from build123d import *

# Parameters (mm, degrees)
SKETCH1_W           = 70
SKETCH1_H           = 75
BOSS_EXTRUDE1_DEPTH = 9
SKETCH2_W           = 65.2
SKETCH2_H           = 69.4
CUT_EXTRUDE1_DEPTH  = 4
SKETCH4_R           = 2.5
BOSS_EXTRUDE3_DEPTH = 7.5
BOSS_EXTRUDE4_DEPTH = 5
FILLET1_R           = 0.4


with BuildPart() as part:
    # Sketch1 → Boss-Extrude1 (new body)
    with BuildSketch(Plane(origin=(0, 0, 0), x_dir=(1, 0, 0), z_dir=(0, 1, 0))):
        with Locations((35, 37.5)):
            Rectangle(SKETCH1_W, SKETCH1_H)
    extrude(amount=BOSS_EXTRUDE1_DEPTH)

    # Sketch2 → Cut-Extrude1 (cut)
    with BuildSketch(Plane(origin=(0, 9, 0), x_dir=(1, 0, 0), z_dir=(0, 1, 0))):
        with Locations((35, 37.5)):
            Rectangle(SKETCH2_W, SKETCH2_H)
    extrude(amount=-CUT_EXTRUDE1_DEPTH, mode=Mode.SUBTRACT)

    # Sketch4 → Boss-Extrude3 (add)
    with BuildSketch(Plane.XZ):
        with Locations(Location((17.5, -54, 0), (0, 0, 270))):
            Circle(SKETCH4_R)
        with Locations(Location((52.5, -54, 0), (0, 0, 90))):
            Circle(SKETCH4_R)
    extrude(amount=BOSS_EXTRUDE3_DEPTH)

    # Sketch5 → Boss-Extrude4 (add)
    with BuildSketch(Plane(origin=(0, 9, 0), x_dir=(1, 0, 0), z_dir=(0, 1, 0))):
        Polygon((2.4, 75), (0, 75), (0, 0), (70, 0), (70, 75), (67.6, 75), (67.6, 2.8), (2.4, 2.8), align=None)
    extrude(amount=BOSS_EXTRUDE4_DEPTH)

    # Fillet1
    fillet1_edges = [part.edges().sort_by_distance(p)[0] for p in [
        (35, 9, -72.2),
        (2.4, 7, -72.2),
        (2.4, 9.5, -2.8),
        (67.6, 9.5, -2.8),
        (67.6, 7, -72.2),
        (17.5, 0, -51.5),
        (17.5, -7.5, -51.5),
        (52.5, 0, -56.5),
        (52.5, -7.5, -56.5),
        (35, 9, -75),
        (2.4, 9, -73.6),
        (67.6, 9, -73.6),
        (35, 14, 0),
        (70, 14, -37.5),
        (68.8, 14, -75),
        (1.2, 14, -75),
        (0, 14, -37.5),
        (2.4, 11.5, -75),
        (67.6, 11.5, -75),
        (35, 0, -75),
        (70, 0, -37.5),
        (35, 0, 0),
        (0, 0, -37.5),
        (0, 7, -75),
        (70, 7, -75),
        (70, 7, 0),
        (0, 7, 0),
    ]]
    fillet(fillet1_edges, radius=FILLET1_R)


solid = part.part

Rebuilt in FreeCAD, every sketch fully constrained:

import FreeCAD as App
import Part
import Sketcher
Q = App.Units.Quantity


def edges_at(feature, points):
    """Names of the edges that pass closest to the given points."""
    edges = feature.Shape.Edges
    near = lambda p: min(range(len(edges)), key=lambda i: edges[i].distToShape(Part.Vertex(*p))[0])
    return sorted({f"Edge{near(p) + 1}" for p in points})


def add_polygon(sketch, points):
    """Adds a closed chain of lines whose ends are joined by coincident constraints."""
    first, n = sketch.GeometryCount, len(points)
    for a, b in zip(points, points[1:] + points[:1]):
        sketch.addGeometry(Part.LineSegment(App.Vector(*a, 0), App.Vector(*b, 0)), False)
    for i in range(n):
        sketch.addConstraint(Sketcher.Constraint("Coincident", first + i, 2, first + (i + 1) % n, 1))

doc = App.newDocument("Part")
body = doc.addObject("PartDesign::Body", "Body")

sketch1 = body.newObject("Sketcher::SketchObject", "Sketch")
sketch1.AttachmentSupport = (doc.getObject("XZ_Plane"), [""])
sketch1.MapMode = "FlatFace"
add_polygon(sketch1, [(0, -75), (0, 0), (70, 0), (70, -75)])
sketch1.addConstraint([
    Sketcher.Constraint("Vertical", 0),
    Sketcher.Constraint("Horizontal", 1),
    Sketcher.Constraint("Vertical", 2),
    Sketcher.Constraint("Horizontal", 3),
    Sketcher.Constraint("Coincident", 0, 2, -1, 1),
    Sketcher.Constraint("DistanceX", 1, 1, 1, 2, Q("70 mm")),
    Sketcher.Constraint("DistanceY", 0, 1, 0, 2, Q("75 mm")),
])
pad1 = body.newObject("PartDesign::Pad", "Pad")
pad1.Profile = sketch1
pad1.Length = 9
pad1.Reversed = True

sketch2 = body.newObject("Sketcher::SketchObject", "Sketch001")
sketch2.AttachmentSupport = (doc.getObject("XZ_Plane"), [""])
sketch2.MapMode = "FlatFace"
sketch2.AttachmentOffset = App.Placement(App.Vector(0, 0, -9), App.Rotation())
add_polygon(sketch2, [(2.4, -72.2), (2.4, -2.8), (67.6, -2.8), (67.6, -72.2)])
sketch2.addConstraint([
    Sketcher.Constraint("Vertical", 0),
    Sketcher.Constraint("Horizontal", 1),
    Sketcher.Constraint("Vertical", 2),
    Sketcher.Constraint("Horizontal", 3),
    Sketcher.Constraint("DistanceX", 1, 1, 1, 2, Q("65.2 mm")),
    Sketcher.Constraint("DistanceY", 0, 1, 0, 2, Q("69.4 mm")),
    Sketcher.Constraint("DistanceX", -1, 1, 0, 2, Q("2.4 mm")),
    Sketcher.Constraint("DistanceY", 0, 2, -1, 1, Q("2.8 mm")),
])
pocket1 = body.newObject("PartDesign::Pocket", "Pocket")
pocket1.Profile = sketch2
pocket1.Length = 4
pocket1.Reversed = True

sketch3 = body.newObject("Sketcher::SketchObject", "Sketch002")
sketch3.AttachmentSupport = (doc.getObject("XZ_Plane"), [""])
sketch3.MapMode = "FlatFace"
sketch3.addGeometry([
    Part.Circle(App.Vector(17.5, -54, 0), App.Vector(0, 0, 1), 2.5),
    Part.Circle(App.Vector(52.5, -54, 0), App.Vector(0, 0, 1), 2.5),
], False)
sketch3.addConstraint([
    Sketcher.Constraint("Equal", 0, 1),
    Sketcher.Constraint("Horizontal", 0, 3, 1, 3),
    Sketcher.Constraint("Diameter", 0, Q("5 mm")),
    Sketcher.Constraint("DistanceY", 0, 3, -1, 1, Q("54 mm")),
    Sketcher.Constraint("DistanceX", 0, 3, 1, 3, Q("35 mm")),
    Sketcher.Constraint("DistanceX", -1, 1, 0, 3, Q("17.5 mm")),
])
pad2 = body.newObject("PartDesign::Pad", "Pad001")
pad2.Profile = sketch3
pad2.Length = 7.5

sketch4 = body.newObject("Sketcher::SketchObject", "Sketch003")
sketch4.AttachmentSupport = (doc.getObject("XZ_Plane"), [""])
sketch4.MapMode = "FlatFace"
sketch4.AttachmentOffset = App.Placement(App.Vector(0, 0, -9), App.Rotation())
add_polygon(sketch4, [(2.4, -75), (0, -75), (0, 0), (70, 0), (70, -75), (67.6, -75), (67.6, -2.8), (2.4, -2.8)])
sketch4.addConstraint([
    Sketcher.Constraint("Horizontal", 0),
    Sketcher.Constraint("Vertical", 1),
    Sketcher.Constraint("Horizontal", 2),
    Sketcher.Constraint("Vertical", 3),
    Sketcher.Constraint("Horizontal", 4),
    Sketcher.Constraint("Vertical", 5),
    Sketcher.Constraint("Horizontal", 6),
    Sketcher.Constraint("Vertical", 7),
    Sketcher.Constraint("Coincident", 1, 2, -1, 1),
    Sketcher.Constraint("Horizontal", 0, 2, 3, 2),
    Sketcher.Constraint("Equal", 0, 4),
    Sketcher.Constraint("DistanceX", 2, 1, 2, 2, Q("70 mm")),
    Sketcher.Constraint("DistanceY", 1, 1, 1, 2, Q("75 mm")),
    Sketcher.Constraint("DistanceX", 0, 2, 0, 1, Q("2.4 mm")),
    Sketcher.Constraint("DistanceY", 5, 1, 5, 2, Q("72.2 mm")),
])
pad3 = body.newObject("PartDesign::Pad", "Pad002")
pad3.Profile = sketch4
pad3.Length = 5
pad3.Reversed = True
doc.recompute()

fillet = body.newObject("PartDesign::Fillet", "Fillet")
fillet.Base = (pad3, edges_at(pad3, [
    (35, 9, -72.2),
    (2.4, 7, -72.2),
    (2.4, 9.5, -2.8),
    (67.6, 9.5, -2.8),
    (67.6, 7, -72.2),
    (17.5, 0, -51.5),
    (17.5, -7.5, -51.5),
    (52.5, 0, -56.5),
    (52.5, -7.5, -56.5),
    (35, 9, -75),
    (2.4, 9, -73.6),
    (67.6, 9, -73.6),
    (35, 14, 0),
    (70, 14, -37.5),
    (68.8, 14, -75),
    (1.2, 14, -75),
    (0, 14, -37.5),
    (2.4, 11.5, -75),
    (67.6, 11.5, -75),
    (35, 0, -75),
    (70, 0, -37.5),
    (35, 0, 0),
    (0, 0, -37.5),
    (0, 7, -75),
    (70, 7, -75),
    (70, 7, 0),
    (0, 7, 0),
]))
fillet.Radius = 0.4

doc.recompute()
